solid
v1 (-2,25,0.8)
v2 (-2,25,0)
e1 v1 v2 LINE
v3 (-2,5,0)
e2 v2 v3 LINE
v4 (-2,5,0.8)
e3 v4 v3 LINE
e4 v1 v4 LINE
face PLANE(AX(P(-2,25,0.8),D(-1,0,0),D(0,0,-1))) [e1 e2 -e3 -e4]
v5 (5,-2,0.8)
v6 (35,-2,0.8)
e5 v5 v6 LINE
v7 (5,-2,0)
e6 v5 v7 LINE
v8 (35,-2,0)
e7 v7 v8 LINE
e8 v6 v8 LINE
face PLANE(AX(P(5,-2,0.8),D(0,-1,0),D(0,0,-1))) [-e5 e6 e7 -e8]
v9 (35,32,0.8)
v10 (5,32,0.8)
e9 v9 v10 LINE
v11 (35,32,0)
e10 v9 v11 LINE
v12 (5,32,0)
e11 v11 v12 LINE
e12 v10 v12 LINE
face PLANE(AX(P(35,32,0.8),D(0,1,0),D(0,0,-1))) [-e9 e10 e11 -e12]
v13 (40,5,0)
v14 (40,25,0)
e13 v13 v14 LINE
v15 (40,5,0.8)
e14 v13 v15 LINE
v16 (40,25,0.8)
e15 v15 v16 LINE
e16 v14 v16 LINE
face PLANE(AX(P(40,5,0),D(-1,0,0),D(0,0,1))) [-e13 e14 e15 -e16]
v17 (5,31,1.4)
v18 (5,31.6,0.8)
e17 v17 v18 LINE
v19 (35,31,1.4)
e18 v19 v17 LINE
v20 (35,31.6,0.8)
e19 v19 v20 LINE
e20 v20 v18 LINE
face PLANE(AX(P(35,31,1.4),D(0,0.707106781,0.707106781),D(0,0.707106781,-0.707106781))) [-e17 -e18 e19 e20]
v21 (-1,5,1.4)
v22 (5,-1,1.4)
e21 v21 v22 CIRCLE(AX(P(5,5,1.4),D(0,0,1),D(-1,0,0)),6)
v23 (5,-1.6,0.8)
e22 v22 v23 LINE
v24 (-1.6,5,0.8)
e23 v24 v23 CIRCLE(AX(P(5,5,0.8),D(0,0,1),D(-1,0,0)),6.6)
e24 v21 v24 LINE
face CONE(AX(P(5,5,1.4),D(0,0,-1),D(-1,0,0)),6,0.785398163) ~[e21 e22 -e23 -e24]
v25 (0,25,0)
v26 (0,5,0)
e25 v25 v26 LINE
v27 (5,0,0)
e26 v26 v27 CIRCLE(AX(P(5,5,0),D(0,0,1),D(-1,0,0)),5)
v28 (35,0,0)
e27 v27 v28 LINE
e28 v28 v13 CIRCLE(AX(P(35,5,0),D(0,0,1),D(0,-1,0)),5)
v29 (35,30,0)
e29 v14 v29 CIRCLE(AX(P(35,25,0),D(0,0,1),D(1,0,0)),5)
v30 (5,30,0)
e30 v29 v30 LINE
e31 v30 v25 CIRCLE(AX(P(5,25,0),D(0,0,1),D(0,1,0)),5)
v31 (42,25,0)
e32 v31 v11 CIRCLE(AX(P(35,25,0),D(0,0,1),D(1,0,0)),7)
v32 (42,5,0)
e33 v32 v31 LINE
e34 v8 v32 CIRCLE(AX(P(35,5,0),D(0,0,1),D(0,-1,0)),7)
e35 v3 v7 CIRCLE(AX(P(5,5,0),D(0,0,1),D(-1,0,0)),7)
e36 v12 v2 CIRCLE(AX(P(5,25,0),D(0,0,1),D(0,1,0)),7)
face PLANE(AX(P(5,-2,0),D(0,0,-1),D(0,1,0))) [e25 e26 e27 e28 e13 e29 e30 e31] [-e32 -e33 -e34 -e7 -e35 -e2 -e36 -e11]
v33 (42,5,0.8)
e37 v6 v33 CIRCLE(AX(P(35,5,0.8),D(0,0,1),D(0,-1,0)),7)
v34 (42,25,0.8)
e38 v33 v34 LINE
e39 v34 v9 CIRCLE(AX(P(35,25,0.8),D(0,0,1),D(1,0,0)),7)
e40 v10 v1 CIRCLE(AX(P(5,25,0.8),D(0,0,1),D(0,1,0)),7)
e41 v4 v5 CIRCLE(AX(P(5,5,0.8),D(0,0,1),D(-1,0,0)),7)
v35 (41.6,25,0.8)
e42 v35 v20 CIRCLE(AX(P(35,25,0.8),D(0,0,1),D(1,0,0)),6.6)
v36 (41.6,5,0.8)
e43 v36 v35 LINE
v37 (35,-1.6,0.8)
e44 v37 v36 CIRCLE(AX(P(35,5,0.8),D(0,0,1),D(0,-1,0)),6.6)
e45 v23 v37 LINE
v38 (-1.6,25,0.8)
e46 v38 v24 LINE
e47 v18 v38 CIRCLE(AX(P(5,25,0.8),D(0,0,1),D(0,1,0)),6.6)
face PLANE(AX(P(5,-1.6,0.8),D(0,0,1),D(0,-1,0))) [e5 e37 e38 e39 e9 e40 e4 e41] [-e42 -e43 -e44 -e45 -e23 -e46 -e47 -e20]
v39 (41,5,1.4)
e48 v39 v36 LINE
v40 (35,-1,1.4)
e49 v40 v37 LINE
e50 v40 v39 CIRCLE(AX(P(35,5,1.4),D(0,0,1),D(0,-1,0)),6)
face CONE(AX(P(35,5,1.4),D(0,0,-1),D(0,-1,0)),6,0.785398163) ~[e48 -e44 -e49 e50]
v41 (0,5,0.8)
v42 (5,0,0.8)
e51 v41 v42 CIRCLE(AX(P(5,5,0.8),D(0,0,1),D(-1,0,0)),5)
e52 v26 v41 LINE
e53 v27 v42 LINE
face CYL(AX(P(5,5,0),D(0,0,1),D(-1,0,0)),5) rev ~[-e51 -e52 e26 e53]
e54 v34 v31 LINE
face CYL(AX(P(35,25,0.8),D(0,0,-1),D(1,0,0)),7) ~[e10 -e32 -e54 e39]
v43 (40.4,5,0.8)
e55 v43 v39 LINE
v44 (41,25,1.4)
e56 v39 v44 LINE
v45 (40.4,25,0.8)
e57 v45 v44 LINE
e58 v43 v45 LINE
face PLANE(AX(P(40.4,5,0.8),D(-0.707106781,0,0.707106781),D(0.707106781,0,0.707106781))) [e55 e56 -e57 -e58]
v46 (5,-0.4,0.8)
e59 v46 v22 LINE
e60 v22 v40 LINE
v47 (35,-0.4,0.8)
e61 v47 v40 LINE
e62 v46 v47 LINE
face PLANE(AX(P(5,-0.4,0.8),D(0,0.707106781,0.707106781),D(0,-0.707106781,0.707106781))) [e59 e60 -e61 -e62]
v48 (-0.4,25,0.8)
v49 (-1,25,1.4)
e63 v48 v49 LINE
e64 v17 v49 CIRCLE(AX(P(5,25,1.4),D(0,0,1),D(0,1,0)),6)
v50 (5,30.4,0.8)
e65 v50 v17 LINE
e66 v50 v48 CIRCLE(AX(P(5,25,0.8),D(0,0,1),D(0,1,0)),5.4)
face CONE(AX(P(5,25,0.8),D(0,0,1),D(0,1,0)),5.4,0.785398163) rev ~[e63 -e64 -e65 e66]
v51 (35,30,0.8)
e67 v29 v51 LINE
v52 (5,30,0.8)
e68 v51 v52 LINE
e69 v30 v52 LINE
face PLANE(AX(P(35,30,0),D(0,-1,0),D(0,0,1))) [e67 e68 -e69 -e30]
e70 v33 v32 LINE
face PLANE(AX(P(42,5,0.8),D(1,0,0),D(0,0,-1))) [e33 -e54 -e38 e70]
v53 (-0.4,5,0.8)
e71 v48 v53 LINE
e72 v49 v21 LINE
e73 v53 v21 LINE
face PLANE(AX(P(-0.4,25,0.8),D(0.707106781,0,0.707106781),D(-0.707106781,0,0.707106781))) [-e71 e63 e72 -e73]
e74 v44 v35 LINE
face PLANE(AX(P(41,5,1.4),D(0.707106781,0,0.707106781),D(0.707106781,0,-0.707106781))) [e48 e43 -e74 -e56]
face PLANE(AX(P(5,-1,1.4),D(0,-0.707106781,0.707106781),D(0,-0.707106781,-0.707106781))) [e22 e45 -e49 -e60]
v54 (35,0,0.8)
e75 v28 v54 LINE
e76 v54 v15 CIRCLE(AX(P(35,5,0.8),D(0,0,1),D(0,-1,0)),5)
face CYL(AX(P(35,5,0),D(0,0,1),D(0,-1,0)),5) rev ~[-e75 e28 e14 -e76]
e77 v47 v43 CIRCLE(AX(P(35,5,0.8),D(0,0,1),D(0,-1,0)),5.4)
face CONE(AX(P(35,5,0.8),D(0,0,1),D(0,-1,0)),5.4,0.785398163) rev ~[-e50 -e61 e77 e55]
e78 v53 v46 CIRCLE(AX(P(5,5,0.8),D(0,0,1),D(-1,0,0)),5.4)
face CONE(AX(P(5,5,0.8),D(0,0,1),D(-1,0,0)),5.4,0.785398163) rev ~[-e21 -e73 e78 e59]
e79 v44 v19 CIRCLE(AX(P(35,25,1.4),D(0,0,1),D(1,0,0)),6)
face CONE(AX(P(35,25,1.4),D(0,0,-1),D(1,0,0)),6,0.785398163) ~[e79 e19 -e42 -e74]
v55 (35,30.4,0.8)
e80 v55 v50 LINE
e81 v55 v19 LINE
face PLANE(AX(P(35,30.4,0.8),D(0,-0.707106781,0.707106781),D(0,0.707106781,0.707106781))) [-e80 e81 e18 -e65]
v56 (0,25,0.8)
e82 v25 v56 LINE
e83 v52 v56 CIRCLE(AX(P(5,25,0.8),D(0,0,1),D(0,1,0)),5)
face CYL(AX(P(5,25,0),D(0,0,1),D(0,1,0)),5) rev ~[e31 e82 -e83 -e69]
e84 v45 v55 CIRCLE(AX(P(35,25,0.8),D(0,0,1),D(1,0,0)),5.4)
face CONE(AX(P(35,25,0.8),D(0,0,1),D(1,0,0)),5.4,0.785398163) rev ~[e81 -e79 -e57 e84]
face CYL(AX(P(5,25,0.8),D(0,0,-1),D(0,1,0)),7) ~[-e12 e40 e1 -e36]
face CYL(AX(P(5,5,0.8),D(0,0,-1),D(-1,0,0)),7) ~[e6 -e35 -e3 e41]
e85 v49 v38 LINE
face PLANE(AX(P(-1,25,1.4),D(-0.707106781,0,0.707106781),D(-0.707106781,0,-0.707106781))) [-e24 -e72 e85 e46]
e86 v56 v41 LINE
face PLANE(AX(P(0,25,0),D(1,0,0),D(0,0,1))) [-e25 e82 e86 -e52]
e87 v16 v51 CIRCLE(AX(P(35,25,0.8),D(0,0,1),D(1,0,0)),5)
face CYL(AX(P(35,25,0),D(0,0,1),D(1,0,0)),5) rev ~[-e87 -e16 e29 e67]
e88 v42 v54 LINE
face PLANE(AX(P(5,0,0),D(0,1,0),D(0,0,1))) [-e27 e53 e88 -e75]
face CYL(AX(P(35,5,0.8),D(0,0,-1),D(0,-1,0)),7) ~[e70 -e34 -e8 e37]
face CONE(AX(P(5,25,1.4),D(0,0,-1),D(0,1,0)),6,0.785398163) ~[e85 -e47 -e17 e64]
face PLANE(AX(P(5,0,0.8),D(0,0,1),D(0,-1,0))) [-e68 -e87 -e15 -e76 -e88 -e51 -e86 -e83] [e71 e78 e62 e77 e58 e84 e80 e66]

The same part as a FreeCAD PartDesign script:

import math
import FreeCAD as App
import Part
import Sketcher

V = App.Vector
Q = App.Units.Quantity


def add_polygon(sketch, points):
    """Adds a closed chain of lines whose ends are joined by coincident constraints."""
    first, n = sketch.GeometryCount, len(points)
    for a, b in zip(points, points[1:] + points[:1]):
        sketch.addGeometry(Part.LineSegment(App.Vector(*a, 0), App.Vector(*b, 0)), False)
    for i in range(n):
        sketch.addConstraint(Sketcher.Constraint("Coincident", first + i, 2, first + (i + 1) % n, 1))

doc = App.newDocument("Part")
params = doc.addObject("Spreadsheet::Sheet", "Params")
for row, (alias, value) in enumerate([
    ("sketch1_width", "2 mm"),
    ("sketch1_width2", "0.4 mm"),
    ("sketch1_height", "0.8 mm"),
    ("sketch2_radius", "5 mm"),
    ("sketch2_width", "30 mm"),
    ("sketch2_height", "20 mm"),
], start=1):
    params.set(f"A{row}", alias)
    params.set(f"B{row}", "=" + value)
    params.setAlias(f"B{row}", alias)

body = doc.addObject("PartDesign::Body", "Body")

# Sketch on YZ plane
sketch1 = body.newObject("Sketcher::SketchObject", "Sketch")
sketch1.AttachmentSupport = (doc.getObject("YZ_Plane"), [""])
sketch1.MapMode = "FlatFace"
sketch1.AttachmentOffset = App.Placement(V(0, 0, 20), App.Rotation())
add_polygon(sketch1, [(-2, 0), (0, 0), (0, 0.8), (-0.4, 0.8), (-1, 1.4), (-1.6, 0.8), (-2, 0.8)])  # lines 0-6
sketch1.addConstraint([
    Sketcher.Constraint("Horizontal", 0),
    Sketcher.Constraint("Vertical", 1),
    Sketcher.Constraint("Horizontal", 2),
    Sketcher.Constraint("Horizontal", 5),
    Sketcher.Constraint("Vertical", 6),
    Sketcher.Constraint("Coincident", 0, 2, -1, 1),
    Sketcher.Constraint("Perpendicular", 3, 4),
    Sketcher.Constraint("Horizontal", 2, 2, 4, 2),
    Sketcher.Constraint("Equal", 2, 5),
    Sketcher.Constraint("Equal", 3, 4),
    Sketcher.Constraint("DistanceX", 0, 1, 0, 2, Q("2 mm")),
    Sketcher.Constraint("DistanceX", 2, 2, 2, 1, Q("0.4 mm")),
    Sketcher.Constraint("DistanceY", 1, 1, 1, 2, Q("0.8 mm")),
])
sketch1.setExpression("Constraints[17]", "Params.sketch1_width")
sketch1.setExpression("Constraints[18]", "Params.sketch1_width2")
sketch1.setExpression("Constraints[19]", "Params.sketch1_height")

# Sketch on XY plane
sketch2 = body.newObject("Sketcher::SketchObject", "Sketch001")
sketch2.AttachmentSupport = (doc.getObject("XY_Plane"), [""])
sketch2.MapMode = "FlatFace"
sketch2.addGeometry([
    Part.LineSegment(V(5, 0, 0), V(35, 0, 0)),  # 0
    Part.ArcOfCircle(Part.Circle(V(35, 5, 0), V(0, 0, 1), 5), math.radians(-90), math.radians(0)),  # 1
    Part.LineSegment(V(40, 5, 0), V(40, 25, 0)),  # 2
    Part.ArcOfCircle(Part.Circle(V(35, 25, 0), V(0, 0, 1), 5), math.radians(0), math.radians(90)),  # 3
    Part.LineSegment(V(35, 30, 0), V(5, 30, 0)),  # 4
    Part.ArcOfCircle(Part.Circle(V(5, 25, 0), V(0, 0, 1), 5), math.radians(90), math.radians(180)),  # 5
    Part.LineSegment(V(0, 25, 0), V(0, 5, 0)),  # 6
    Part.ArcOfCircle(Part.Circle(V(5, 5, 0), V(0, 0, 1), 5), math.radians(180), math.radians(270)),  # 7
], False)
sketch2.addConstraint([
    Sketcher.Constraint("Tangent", 0, 2, 1, 1),
    Sketcher.Constraint("Tangent", 1, 2, 2, 1),
    Sketcher.Constraint("Tangent", 2, 2, 3, 1),
    Sketcher.Constraint("Tangent", 3, 2, 4, 1),
    Sketcher.Constraint("Tangent", 4, 2, 5, 1),
    Sketcher.Constraint("Tangent", 5, 2, 6, 1),
    Sketcher.Constraint("Tangent", 6, 2, 7, 1),
    Sketcher.Constraint("Tangent", 7, 2, 0, 1),
    Sketcher.Constraint("Horizontal", 0),
    Sketcher.Constraint("Vertical", 2),
    Sketcher.Constraint("Horizontal", 4),
    Sketcher.Constraint("Vertical", 6),
    Sketcher.Constraint("Equal", 1, 3),
    Sketcher.Constraint("Equal", 3, 5),
    Sketcher.Constraint("Equal", 5, 7),
    Sketcher.Constraint("PointOnObject", 0, 2, -1),
    Sketcher.Constraint("PointOnObject", 5, 2, -2),
    Sketcher.Constraint("Radius", 1, Q("5 mm")),
    Sketcher.Constraint("DistanceX", 0, 1, 0, 2, Q("30 mm")),
    Sketcher.Constraint("DistanceY", 2, 1, 2, 2, Q("20 mm")),
])
sketch2.setExpression("Constraints[17]", "Params.sketch2_radius")
sketch2.setExpression("Constraints[18]", "Params.sketch2_width")
sketch2.setExpression("Constraints[19]", "Params.sketch2_height")
doc.recompute()

additivepipe = body.newObject("PartDesign::AdditivePipe", "AdditivePipe")
additivepipe.Profile = sketch1
additivepipe.Spine = (sketch2, ["Edge1", "Edge2", "Edge3", "Edge4", "Edge5", "Edge6", "Edge7", "Edge8"])

doc.recompute()
